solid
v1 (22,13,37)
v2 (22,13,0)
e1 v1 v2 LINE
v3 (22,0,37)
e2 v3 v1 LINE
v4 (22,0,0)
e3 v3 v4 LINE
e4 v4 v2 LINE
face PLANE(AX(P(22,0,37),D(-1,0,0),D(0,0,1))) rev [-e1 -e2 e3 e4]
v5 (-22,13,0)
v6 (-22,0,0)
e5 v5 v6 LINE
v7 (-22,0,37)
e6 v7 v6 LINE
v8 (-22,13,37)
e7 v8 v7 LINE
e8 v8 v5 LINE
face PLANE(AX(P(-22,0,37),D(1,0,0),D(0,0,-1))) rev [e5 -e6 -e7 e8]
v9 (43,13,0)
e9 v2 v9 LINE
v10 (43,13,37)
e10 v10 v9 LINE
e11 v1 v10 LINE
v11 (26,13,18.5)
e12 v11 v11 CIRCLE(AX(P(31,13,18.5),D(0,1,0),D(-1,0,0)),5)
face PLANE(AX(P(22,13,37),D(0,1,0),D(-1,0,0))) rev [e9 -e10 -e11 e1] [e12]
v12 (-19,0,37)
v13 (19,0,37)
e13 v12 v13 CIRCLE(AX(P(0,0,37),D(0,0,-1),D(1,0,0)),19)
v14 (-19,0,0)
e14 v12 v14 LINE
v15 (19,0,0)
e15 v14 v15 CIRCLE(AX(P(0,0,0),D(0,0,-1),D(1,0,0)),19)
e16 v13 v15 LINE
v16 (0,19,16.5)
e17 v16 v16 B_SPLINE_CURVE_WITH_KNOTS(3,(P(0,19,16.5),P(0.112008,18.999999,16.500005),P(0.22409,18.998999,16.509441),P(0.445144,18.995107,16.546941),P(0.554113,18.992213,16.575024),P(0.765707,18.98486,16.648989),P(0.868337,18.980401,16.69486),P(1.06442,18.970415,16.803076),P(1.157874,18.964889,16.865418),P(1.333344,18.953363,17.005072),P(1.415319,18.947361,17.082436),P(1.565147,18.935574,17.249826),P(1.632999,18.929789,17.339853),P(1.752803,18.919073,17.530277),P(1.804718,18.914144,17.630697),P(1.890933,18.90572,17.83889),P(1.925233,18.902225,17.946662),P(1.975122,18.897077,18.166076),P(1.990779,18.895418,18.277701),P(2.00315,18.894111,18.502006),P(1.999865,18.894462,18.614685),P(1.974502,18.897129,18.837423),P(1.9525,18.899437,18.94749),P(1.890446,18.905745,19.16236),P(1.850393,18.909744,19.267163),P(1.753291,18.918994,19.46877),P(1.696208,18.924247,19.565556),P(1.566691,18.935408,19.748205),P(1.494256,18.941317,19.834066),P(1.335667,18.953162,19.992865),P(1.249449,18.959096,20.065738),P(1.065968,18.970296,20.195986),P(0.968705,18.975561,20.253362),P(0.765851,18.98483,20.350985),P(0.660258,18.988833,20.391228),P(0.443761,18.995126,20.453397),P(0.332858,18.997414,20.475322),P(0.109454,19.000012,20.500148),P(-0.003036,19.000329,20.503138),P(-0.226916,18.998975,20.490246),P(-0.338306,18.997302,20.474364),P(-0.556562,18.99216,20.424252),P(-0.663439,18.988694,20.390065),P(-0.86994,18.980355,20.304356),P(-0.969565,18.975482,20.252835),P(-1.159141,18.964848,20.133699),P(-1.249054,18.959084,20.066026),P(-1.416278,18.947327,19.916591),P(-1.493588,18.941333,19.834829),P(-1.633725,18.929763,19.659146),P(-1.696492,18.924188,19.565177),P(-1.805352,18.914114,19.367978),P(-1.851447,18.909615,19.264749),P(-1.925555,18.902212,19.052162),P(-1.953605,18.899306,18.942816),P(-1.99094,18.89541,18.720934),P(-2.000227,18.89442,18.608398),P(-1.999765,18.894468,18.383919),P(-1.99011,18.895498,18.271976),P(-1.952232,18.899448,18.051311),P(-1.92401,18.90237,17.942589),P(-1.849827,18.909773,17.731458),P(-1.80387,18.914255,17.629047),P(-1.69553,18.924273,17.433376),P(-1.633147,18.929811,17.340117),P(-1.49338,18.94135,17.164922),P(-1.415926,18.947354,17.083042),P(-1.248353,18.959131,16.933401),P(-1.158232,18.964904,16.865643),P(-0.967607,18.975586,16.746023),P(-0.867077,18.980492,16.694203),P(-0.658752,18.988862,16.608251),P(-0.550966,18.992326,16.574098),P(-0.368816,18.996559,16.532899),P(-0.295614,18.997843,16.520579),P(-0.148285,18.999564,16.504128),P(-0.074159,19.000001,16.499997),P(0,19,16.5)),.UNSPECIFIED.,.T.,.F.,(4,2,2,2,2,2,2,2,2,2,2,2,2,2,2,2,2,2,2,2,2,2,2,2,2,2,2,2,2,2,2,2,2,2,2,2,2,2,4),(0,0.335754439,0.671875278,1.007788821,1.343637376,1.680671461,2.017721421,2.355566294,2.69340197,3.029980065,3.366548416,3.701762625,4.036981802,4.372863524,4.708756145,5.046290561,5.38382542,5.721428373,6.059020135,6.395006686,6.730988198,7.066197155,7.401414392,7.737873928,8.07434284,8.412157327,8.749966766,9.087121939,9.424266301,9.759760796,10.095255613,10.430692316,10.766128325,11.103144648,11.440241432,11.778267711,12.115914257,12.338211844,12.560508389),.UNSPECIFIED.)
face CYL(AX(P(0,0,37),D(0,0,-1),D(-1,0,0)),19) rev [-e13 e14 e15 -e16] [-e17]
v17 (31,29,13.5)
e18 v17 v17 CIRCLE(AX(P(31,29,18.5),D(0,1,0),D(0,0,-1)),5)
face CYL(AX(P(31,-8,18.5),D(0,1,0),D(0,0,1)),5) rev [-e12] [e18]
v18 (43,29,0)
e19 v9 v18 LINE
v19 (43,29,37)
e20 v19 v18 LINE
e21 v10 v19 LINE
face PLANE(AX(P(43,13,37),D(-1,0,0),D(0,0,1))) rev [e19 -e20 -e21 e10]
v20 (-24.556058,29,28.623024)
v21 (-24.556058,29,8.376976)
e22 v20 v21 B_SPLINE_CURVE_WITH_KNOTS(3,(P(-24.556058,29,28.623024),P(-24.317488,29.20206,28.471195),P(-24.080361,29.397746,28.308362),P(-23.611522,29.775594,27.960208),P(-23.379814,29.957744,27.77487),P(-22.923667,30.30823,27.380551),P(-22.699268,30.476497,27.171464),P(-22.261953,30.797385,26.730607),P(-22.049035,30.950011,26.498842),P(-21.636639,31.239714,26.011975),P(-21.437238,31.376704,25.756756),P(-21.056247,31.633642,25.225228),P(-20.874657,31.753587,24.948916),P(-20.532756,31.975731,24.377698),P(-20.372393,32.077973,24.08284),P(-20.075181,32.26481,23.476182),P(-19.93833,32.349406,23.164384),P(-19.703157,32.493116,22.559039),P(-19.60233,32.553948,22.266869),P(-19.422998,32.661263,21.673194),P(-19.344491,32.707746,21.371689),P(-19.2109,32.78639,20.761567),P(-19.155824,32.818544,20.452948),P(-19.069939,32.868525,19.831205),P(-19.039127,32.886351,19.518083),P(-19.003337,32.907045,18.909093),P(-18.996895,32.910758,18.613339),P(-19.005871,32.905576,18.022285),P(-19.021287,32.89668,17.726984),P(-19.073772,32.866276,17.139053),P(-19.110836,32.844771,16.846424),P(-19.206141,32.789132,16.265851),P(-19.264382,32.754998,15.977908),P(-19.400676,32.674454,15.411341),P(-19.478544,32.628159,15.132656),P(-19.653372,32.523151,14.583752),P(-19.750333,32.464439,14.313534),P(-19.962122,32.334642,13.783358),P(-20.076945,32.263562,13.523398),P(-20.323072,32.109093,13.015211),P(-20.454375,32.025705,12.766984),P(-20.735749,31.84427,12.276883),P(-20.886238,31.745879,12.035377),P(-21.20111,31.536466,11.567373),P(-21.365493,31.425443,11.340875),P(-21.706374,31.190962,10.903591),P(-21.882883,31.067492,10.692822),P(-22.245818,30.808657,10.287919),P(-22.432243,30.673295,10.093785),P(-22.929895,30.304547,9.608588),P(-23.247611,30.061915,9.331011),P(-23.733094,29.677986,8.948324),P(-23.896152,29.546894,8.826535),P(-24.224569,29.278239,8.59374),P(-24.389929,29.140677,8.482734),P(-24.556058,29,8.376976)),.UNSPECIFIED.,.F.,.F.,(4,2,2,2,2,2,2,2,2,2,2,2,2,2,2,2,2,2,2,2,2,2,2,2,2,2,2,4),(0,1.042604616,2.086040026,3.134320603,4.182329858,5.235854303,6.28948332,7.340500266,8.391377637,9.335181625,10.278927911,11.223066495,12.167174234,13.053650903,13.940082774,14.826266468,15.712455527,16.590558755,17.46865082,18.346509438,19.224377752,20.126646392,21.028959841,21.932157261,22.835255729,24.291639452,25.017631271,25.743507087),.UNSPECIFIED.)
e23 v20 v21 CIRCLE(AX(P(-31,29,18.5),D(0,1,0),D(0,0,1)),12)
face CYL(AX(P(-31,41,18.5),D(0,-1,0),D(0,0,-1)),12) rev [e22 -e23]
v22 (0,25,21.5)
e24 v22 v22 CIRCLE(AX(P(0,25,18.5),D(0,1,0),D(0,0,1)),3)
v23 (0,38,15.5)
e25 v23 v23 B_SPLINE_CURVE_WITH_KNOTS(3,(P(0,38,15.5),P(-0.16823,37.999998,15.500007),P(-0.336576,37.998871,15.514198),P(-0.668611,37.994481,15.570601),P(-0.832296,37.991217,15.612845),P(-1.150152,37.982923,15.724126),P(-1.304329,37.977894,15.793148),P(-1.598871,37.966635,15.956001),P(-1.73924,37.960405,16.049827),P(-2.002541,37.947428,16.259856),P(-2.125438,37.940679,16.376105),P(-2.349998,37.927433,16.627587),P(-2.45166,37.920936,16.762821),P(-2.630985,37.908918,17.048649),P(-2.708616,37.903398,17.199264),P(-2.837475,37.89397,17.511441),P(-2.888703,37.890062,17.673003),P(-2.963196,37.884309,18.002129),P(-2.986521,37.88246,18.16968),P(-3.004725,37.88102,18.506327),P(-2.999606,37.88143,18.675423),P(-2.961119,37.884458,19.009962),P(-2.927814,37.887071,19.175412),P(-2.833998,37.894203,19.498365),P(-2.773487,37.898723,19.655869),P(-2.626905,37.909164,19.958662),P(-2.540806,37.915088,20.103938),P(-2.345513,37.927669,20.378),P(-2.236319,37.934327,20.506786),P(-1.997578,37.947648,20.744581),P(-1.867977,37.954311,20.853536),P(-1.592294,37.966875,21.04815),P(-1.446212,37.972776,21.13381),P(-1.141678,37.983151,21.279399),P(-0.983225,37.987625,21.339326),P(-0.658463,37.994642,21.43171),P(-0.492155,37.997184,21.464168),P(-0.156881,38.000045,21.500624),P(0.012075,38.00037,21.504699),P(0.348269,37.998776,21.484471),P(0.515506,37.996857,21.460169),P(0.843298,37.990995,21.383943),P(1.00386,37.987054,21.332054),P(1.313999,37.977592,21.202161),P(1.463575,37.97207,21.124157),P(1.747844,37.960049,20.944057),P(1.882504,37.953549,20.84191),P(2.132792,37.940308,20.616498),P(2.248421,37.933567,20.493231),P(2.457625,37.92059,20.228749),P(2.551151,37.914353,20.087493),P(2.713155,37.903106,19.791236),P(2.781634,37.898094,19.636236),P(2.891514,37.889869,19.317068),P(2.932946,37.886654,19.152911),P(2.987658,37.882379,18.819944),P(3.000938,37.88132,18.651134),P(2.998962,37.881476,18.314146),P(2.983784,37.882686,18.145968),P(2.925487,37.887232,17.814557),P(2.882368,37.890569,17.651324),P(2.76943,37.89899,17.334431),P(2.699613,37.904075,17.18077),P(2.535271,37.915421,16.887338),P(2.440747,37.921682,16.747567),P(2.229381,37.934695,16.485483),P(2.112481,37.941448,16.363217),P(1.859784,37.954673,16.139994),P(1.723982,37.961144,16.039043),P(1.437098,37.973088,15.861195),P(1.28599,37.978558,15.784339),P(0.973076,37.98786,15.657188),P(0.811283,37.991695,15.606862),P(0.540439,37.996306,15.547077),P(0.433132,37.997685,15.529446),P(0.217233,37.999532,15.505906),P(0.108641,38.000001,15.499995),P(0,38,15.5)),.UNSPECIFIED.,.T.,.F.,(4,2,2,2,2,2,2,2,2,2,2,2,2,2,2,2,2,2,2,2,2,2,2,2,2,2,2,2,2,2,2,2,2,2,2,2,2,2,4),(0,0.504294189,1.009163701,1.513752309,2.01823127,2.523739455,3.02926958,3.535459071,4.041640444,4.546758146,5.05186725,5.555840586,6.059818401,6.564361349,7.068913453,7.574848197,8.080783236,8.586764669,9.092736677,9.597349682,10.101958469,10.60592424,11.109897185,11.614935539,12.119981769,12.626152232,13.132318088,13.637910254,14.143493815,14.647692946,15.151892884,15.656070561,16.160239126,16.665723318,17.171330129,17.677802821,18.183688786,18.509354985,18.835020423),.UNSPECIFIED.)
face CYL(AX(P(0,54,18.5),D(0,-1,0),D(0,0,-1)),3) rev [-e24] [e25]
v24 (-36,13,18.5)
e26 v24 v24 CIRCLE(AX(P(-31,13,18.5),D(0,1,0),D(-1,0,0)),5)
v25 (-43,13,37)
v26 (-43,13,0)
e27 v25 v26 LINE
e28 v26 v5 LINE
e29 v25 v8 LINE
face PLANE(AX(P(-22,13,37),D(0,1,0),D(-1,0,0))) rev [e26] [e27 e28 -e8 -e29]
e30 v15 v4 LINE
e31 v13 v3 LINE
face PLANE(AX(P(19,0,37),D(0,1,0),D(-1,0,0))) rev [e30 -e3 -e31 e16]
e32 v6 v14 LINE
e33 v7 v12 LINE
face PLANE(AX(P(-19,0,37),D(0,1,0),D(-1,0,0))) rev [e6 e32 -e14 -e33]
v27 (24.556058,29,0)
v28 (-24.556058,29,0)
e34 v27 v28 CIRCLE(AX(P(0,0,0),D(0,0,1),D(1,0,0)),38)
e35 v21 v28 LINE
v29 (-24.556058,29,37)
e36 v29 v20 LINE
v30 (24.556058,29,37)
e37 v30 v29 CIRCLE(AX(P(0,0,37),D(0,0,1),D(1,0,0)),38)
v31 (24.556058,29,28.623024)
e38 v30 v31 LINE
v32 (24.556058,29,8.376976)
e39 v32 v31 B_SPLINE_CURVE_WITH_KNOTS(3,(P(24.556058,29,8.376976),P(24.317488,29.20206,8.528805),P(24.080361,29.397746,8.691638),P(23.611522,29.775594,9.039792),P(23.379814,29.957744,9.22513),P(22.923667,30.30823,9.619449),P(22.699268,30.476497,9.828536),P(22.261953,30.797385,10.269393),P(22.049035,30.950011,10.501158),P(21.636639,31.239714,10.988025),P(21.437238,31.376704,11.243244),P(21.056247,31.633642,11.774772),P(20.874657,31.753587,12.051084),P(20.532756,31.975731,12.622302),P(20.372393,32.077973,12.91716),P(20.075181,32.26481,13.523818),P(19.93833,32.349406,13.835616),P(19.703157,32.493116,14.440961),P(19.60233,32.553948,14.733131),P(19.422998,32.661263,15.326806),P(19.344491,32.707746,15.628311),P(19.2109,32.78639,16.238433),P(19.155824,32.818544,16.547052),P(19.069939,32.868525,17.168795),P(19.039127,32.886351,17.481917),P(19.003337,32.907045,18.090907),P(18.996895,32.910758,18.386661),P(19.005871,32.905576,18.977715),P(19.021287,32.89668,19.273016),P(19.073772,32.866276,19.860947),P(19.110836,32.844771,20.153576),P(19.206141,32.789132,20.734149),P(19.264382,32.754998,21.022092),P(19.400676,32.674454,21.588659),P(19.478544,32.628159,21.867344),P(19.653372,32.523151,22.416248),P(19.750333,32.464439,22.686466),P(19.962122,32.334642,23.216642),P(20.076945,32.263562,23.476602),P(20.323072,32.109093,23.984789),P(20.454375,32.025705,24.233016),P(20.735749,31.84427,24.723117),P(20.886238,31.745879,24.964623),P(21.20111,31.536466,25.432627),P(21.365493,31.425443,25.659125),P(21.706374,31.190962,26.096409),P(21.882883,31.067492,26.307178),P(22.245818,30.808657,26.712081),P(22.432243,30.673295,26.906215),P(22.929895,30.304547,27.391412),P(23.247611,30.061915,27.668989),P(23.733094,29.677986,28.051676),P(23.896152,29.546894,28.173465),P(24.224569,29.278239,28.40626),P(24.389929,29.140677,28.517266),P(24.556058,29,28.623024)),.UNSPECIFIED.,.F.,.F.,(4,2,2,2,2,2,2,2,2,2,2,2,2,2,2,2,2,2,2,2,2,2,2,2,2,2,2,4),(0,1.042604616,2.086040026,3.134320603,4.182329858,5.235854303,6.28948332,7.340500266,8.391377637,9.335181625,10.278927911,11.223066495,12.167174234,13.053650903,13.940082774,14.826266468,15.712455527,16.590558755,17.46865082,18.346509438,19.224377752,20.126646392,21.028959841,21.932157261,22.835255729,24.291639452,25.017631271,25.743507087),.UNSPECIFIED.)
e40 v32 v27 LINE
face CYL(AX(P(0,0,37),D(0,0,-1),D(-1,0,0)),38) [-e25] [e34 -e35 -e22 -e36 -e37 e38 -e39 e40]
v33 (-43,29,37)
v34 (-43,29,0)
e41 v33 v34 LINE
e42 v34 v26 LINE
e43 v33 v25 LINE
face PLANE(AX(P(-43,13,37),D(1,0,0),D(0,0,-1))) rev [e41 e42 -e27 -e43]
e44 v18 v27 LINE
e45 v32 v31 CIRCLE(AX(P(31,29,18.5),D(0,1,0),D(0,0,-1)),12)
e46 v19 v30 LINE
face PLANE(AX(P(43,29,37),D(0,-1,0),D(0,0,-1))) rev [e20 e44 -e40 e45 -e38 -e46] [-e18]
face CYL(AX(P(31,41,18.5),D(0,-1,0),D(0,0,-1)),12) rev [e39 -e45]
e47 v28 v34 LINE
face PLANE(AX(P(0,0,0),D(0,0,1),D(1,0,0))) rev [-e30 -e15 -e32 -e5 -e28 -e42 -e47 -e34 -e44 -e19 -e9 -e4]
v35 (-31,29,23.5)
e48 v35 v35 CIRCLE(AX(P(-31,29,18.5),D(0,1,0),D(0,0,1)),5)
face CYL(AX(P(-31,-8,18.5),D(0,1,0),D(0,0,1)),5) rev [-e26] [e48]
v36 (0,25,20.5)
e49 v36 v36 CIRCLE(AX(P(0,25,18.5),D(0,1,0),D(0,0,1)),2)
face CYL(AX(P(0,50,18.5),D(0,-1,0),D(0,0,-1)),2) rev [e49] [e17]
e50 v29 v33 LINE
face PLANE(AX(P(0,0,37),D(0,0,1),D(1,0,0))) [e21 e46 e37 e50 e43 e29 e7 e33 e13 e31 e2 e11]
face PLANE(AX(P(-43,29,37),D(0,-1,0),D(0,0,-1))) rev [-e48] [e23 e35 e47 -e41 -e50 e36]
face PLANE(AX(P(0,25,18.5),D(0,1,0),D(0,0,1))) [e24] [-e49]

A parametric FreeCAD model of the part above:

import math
import FreeCAD as App
import Part
import Sketcher
Q = App.Units.Quantity

doc = App.newDocument("Part")
params = doc.addObject("Spreadsheet::Sheet", "Params")
for row, (alias, value) in enumerate([
    ("sketch1_radius", "19 mm"),
    ("sketch1_radius2", "38 mm"),
    ("sketch1_width", "3 mm"),
    ("sketch1_width2", "21 mm"),
    ("sketch1_height", "13 mm"),
    ("pad1_length", "37 mm"),
    ("sketch2_diameter", "10 mm"),
    ("pocket1_length", "37 mm"),
    ("sketch3_diameter", "24 mm"),
    ("pocket2_length", "12 mm"),
    ("sketch4_diameter", "4 mm"),
    ("pocket3_length", "50 mm"),
    ("sketch5_diameter", "6 mm"),
    ("pocket4_length", "29 mm"),
], start=1):
    params.set(f"A{row}", alias)
    params.set(f"B{row}", "=" + value)
    params.setAlias(f"B{row}", alias)

body = doc.addObject("PartDesign::Body", "Body")

sketch1 = body.newObject("Sketcher::SketchObject", "Sketch")
sketch1.AttachmentSupport = (doc.getObject("XY_Plane"), [""])
sketch1.MapMode = "FlatFace"
sketch1.addGeometry([
    Part.LineSegment(App.Vector(-22, 0, 0), App.Vector(-19, 0, 0)),
    Part.ArcOfCircle(Part.Circle(App.Vector(0, 0, 0), App.Vector(0, 0, 1), 19), math.radians(0), math.radians(180)),
    Part.LineSegment(App.Vector(19, 0, 0), App.Vector(22, 0, 0)),
    Part.LineSegment(App.Vector(22, 0, 0), App.Vector(22, 13, 0)),
    Part.LineSegment(App.Vector(22, 13, 0), App.Vector(43, 13, 0)),
    Part.LineSegment(App.Vector(43, 13, 0), App.Vector(43, 29, 0)),
    Part.LineSegment(App.Vector(43, 29, 0), App.Vector(24.6, 29, 0)),
    Part.ArcOfCircle(Part.Circle(App.Vector(0, 0, 0), App.Vector(0, 0, 1), 38), math.radians(50), math.radians(130)),
    Part.LineSegment(App.Vector(-24.6, 29, 0), App.Vector(-43, 29, 0)),
    Part.LineSegment(App.Vector(-43, 29, 0), App.Vector(-43, 13, 0)),
    Part.LineSegment(App.Vector(-43, 13, 0), App.Vector(-22, 13, 0)),
    Part.LineSegment(App.Vector(-22, 13, 0), App.Vector(-22, 0, 0)),
], False)
sketch1.addConstraint([
    Sketcher.Constraint("Coincident", 0, 2, 1, 2),
    Sketcher.Constraint("Coincident", 1, 1, 2, 1),
    Sketcher.Constraint("Coincident", 2, 2, 3, 1),
    Sketcher.Constraint("Coincident", 3, 2, 4, 1),
    Sketcher.Constraint("Coincident", 4, 2, 5, 1),
    Sketcher.Constraint("Coincident", 5, 2, 6, 1),
    Sketcher.Constraint("Coincident", 6, 2, 7, 1),
    Sketcher.Constraint("Coincident", 7, 2, 8, 1),
    Sketcher.Constraint("Coincident", 8, 2, 9, 1),
    Sketcher.Constraint("Coincident", 9, 2, 10, 1),
    Sketcher.Constraint("Coincident", 10, 2, 11, 1),
    Sketcher.Constraint("Coincident", 11, 2, 0, 1),
    Sketcher.Constraint("Horizontal", 0),
    Sketcher.Constraint("Horizontal", 2),
    Sketcher.Constraint("Vertical", 3),
    Sketcher.Constraint("Horizontal", 4),
    Sketcher.Constraint("Vertical", 5),
    Sketcher.Constraint("Horizontal", 6),
    Sketcher.Constraint("Horizontal", 8),
    Sketcher.Constraint("Vertical", 9),
    Sketcher.Constraint("Horizontal", 10),
    Sketcher.Constraint("Vertical", 11),
    Sketcher.Constraint("Coincident", 1, 3, -1, 1),
    Sketcher.Constraint("Coincident", 7, 3, -1, 1),
    Sketcher.Constraint("Symmetric", 2, 2, 11, 2, -1, 1),
    Sketcher.Constraint("Symmetric", 5, 2, 8, 2, -2),
    Sketcher.Constraint("PointOnObject", 0, 2, -1),
    Sketcher.Constraint("Horizontal", 4, 2, 9, 2),
    Sketcher.Constraint("Radius", 1, Q("19 mm")),
    Sketcher.Constraint("Radius", 7, Q("38 mm")),
    Sketcher.Constraint("DistanceX", 0, 1, 0, 2, Q("3 mm")),
    Sketcher.Constraint("DistanceX", 4, 1, 4, 2, Q("21 mm")),
    Sketcher.Constraint("DistanceY", 3, 1, 3, 2, Q("13 mm")),
    Sketcher.Constraint("DistanceY", 5, 1, 5, 2, Q("16 mm")),
])
sketch1.setExpression("Constraints[28]", "Params.sketch1_radius")
sketch1.setExpression("Constraints[29]", "Params.sketch1_radius2")
sketch1.setExpression("Constraints[30]", "Params.sketch1_width")
sketch1.setExpression("Constraints[31]", "Params.sketch1_width2")
sketch1.setExpression("Constraints[32]", "Params.sketch1_height")
pad1 = body.newObject("PartDesign::Pad", "Pad")
pad1.Profile = sketch1
pad1.setExpression("Length", "Params.pad1_length")

sketch2 = body.newObject("Sketcher::SketchObject", "Sketch001")
sketch2.AttachmentSupport = (doc.getObject("XZ_Plane"), [""])
sketch2.MapMode = "FlatFace"
sketch2.AttachmentOffset = App.Placement(App.Vector(0, 0, -29), App.Rotation())
sketch2.addGeometry([
    Part.Circle(App.Vector(-31, 18, 0), App.Vector(0, 0, 1), 5),
    Part.Circle(App.Vector(31, 18, 0), App.Vector(0, 0, 1), 5),
], False)
sketch2.addConstraint([
    Sketcher.Constraint("Equal", 0, 1),
    Sketcher.Constraint("Symmetric", 0, 3, 1, 3, -2),
    Sketcher.Constraint("Diameter", 0, Q("10 mm")),
    Sketcher.Constraint("DistanceX", 0, 3, -1, 1, Q("31 mm")),
    Sketcher.Constraint("DistanceY", -1, 1, 0, 3, Q("18.5 mm")),
])
sketch2.setExpression("Constraints[2]", "Params.sketch2_diameter")
pocket1 = body.newObject("PartDesign::Pocket", "Pocket")
pocket1.Profile = sketch2
pocket1.setExpression("Length", "Params.pocket1_length")
pocket1.Reversed = True

sketch3 = body.newObject("Sketcher::SketchObject", "Sketch002")
sketch3.AttachmentSupport = (doc.getObject("XZ_Plane"), [""])
sketch3.MapMode = "FlatFace"
sketch3.AttachmentOffset = App.Placement(App.Vector(0, 0, -29), App.Rotation())
sketch3.addGeometry([
    Part.Circle(App.Vector(-31, 18, 0), App.Vector(0, 0, 1), 12),
    Part.Circle(App.Vector(31, 18, 0), App.Vector(0, 0, 1), 12),
], False)
sketch3.addConstraint([
    Sketcher.Constraint("Equal", 0, 1),
    Sketcher.Constraint("Symmetric", 0, 3, 1, 3, -2),
    Sketcher.Constraint("Diameter", 0, Q("24 mm")),
    Sketcher.Constraint("DistanceX", 0, 3, -1, 1, Q("31 mm")),
    Sketcher.Constraint("DistanceY", -1, 1, 0, 3, Q("18.5 mm")),
])
sketch3.setExpression("Constraints[2]", "Params.sketch3_diameter")
pocket2 = body.newObject("PartDesign::Pocket", "Pocket001")
pocket2.Profile = sketch3
pocket2.setExpression("Length", "Params.pocket2_length")

sketch4 = body.newObject("Sketcher::SketchObject", "Sketch003")
sketch4.AttachmentSupport = (doc.getObject("XZ_Plane"), [""])
sketch4.MapMode = "FlatFace"
sketch4.addGeometry(Part.Circle(App.Vector(0, 18.5, 0), App.Vector(0, 0, 1), 2), False)
sketch4.addConstraint([
    Sketcher.Constraint("PointOnObject", 0, 3, -2),
    Sketcher.Constraint("Diameter", 0, Q("4 mm")),
    Sketcher.Constraint("DistanceY", -1, 1, 0, 3, Q("18.5 mm")),
])
sketch4.setExpression("Constraints[1]", "Params.sketch4_diameter")
pocket3 = body.newObject("PartDesign::Pocket", "Pocket002")
pocket3.Profile = sketch4
pocket3.setExpression("Length", "Params.pocket3_length")

sketch5 = body.newObject("Sketcher::SketchObject", "Sketch004")
sketch5.AttachmentSupport = (doc.getObject("XZ_Plane"), [""])
sketch5.MapMode = "FlatFace"
sketch5.AttachmentOffset = App.Placement(App.Vector(0, 0, -25), App.Rotation())
sketch5.addGeometry(Part.Circle(App.Vector(0, 18.5, 0), App.Vector(0, 0, 1), 3), False)
sketch5.addConstraint([
    Sketcher.Constraint("PointOnObject", 0, 3, -2),
    Sketcher.Constraint("Diameter", 0, Q("6 mm")),
    Sketcher.Constraint("DistanceY", -1, 1, 0, 3, Q("18.5 mm")),
])
sketch5.setExpression("Constraints[1]", "Params.sketch5_diameter")
pocket4 = body.newObject("PartDesign::Pocket", "Pocket003")
pocket4.Profile = sketch5
pocket4.setExpression("Length", "Params.pocket4_length")

doc.recompute()
